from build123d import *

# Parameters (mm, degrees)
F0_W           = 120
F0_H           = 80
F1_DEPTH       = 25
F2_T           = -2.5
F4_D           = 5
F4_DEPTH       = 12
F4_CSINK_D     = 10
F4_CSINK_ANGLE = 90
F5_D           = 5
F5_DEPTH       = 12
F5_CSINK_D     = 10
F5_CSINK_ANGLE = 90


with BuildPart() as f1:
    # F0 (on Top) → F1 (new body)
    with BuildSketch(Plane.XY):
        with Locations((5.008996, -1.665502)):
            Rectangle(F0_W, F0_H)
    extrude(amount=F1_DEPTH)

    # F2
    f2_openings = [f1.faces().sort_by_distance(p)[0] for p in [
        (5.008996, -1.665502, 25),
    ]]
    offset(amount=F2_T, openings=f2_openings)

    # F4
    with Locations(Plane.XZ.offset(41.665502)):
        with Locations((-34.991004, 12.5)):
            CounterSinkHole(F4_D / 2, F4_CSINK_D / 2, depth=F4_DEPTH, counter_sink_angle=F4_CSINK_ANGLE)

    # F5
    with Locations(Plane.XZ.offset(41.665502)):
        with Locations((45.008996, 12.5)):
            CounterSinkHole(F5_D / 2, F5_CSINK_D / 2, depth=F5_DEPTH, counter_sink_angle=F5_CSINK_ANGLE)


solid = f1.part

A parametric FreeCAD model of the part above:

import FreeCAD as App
import Part
import Sketcher

V = App.Vector


def faces_at(feature, points):
    """Names of the faces that lie closest to the given points."""
    faces = feature.Shape.Faces
    near = lambda p: min(range(len(faces)), key=lambda i: faces[i].distToShape(Part.Vertex(*p))[0])
    return sorted({f"Face{near(p) + 1}" for p in points})

doc = App.newDocument("Part")
body = doc.addObject("PartDesign::Body", "Body")

# Sketch on XY plane
sketch1 = body.newObject("Sketcher::SketchObject", "Sketch")
sketch1.AttachmentSupport = (doc.getObject("XY_Plane"), [""])
sketch1.MapMode = "FlatFace"
sketch1.addGeometry([
    Part.LineSegment(V(-55, 38, 0), V(-55, -42, 0)),
    Part.LineSegment(V(-55, -42, 0), V(65, -42, 0)),
    Part.LineSegment(V(65, -42, 0), V(65, 38, 0)),
    Part.LineSegment(V(65, 38, 0), V(-55, 38, 0)),
], False)
sketch1.addConstraint([
    Sketcher.Constraint("Coincident", 0, 2, 1, 1),
    Sketcher.Constraint("Coincident", 1, 2, 2, 1),
    Sketcher.Constraint("Coincident", 2, 2, 3, 1),
    Sketcher.Constraint("Coincident", 3, 2, 0, 1),
    Sketcher.Constraint("Vertical", 0),
    Sketcher.Constraint("Horizontal", 1),
    Sketcher.Constraint("Vertical", 2),
    Sketcher.Constraint("Horizontal", 3),
    Sketcher.Constraint("DistanceX", 1, 1, 1, 2, 120.0),
    Sketcher.Constraint("DistanceY", 0, 2, 0, 1, 80.0),
    Sketcher.Constraint("DistanceY", 0, 2, -1, 1, 41.665502),
    Sketcher.Constraint("DistanceX", 0, 2, -1, 1, 54.991004),
])
pad1 = body.newObject("PartDesign::Pad", "Pad")
pad1.Profile = sketch1
pad1.Length = 25
doc.recompute()

thickness = body.newObject("PartDesign::Thickness", "Thickness")
thickness.Base = (pad1, faces_at(pad1, [(5.009, -1.666, 25)]))
thickness.Value = 2.5
thickness.Reversed = True
thickness.Join = "Arc"

# Sketch on XZ plane
sketch2 = body.newObject("Sketcher::SketchObject", "Sketch001")
sketch2.AttachmentSupport = (doc.getObject("XZ_Plane"), [""])
sketch2.MapMode = "FlatFace"
sketch2.AttachmentOffset = App.Placement(V(0, 0, 41.665502), App.Rotation())
sketch2.addGeometry(Part.Circle(V(-35, 12.5, 0), V(0, 0, 1), 2.5), False)
sketch2.addConstraint([
    Sketcher.Constraint("Diameter", 0, 5.0),
    Sketcher.Constraint("DistanceY", -1, 1, 0, 3, 12.5),
    Sketcher.Constraint("DistanceX", 0, 3, -1, 1, 34.991004),
])
doc.recompute()
hole = body.newObject("PartDesign::Hole", "Hole")
hole.Profile = sketch2
hole.ThreadType = "None"
hole.Diameter = 5
hole.DepthType = "Dimension"
hole.Depth = 12
hole.DrillPoint = "Flat"
hole.HoleCutType = "Countersink"
hole.HoleCutDiameter = 10
hole.HoleCutCountersinkAngle = 90

# Sketch on XZ plane
sketch3 = body.newObject("Sketcher::SketchObject", "Sketch002")
sketch3.AttachmentSupport = (doc.getObject("XZ_Plane"), [""])
sketch3.MapMode = "FlatFace"
sketch3.AttachmentOffset = App.Placement(V(0, 0, 41.665502), App.Rotation())
sketch3.addGeometry(Part.Circle(V(45, 12.5, 0), V(0, 0, 1), 2.5), False)
sketch3.addConstraint([
    Sketcher.Constraint("Diameter", 0, 5.0),
    Sketcher.Constraint("DistanceY", -1, 1, 0, 3, 12.5),
    Sketcher.Constraint("DistanceX", -1, 1, 0, 3, 45.008996),
])
doc.recompute()
hole2 = body.newObject("PartDesign::Hole", "Hole001")
hole2.Profile = sketch3
hole2.ThreadType = "None"
hole2.Diameter = 5
hole2.DepthType = "Dimension"
hole2.Depth = 12
hole2.DrillPoint = "Flat"
hole2.HoleCutType = "Countersink"
hole2.HoleCutDiameter = 10
hole2.HoleCutCountersinkAngle = 90

doc.recompute()
